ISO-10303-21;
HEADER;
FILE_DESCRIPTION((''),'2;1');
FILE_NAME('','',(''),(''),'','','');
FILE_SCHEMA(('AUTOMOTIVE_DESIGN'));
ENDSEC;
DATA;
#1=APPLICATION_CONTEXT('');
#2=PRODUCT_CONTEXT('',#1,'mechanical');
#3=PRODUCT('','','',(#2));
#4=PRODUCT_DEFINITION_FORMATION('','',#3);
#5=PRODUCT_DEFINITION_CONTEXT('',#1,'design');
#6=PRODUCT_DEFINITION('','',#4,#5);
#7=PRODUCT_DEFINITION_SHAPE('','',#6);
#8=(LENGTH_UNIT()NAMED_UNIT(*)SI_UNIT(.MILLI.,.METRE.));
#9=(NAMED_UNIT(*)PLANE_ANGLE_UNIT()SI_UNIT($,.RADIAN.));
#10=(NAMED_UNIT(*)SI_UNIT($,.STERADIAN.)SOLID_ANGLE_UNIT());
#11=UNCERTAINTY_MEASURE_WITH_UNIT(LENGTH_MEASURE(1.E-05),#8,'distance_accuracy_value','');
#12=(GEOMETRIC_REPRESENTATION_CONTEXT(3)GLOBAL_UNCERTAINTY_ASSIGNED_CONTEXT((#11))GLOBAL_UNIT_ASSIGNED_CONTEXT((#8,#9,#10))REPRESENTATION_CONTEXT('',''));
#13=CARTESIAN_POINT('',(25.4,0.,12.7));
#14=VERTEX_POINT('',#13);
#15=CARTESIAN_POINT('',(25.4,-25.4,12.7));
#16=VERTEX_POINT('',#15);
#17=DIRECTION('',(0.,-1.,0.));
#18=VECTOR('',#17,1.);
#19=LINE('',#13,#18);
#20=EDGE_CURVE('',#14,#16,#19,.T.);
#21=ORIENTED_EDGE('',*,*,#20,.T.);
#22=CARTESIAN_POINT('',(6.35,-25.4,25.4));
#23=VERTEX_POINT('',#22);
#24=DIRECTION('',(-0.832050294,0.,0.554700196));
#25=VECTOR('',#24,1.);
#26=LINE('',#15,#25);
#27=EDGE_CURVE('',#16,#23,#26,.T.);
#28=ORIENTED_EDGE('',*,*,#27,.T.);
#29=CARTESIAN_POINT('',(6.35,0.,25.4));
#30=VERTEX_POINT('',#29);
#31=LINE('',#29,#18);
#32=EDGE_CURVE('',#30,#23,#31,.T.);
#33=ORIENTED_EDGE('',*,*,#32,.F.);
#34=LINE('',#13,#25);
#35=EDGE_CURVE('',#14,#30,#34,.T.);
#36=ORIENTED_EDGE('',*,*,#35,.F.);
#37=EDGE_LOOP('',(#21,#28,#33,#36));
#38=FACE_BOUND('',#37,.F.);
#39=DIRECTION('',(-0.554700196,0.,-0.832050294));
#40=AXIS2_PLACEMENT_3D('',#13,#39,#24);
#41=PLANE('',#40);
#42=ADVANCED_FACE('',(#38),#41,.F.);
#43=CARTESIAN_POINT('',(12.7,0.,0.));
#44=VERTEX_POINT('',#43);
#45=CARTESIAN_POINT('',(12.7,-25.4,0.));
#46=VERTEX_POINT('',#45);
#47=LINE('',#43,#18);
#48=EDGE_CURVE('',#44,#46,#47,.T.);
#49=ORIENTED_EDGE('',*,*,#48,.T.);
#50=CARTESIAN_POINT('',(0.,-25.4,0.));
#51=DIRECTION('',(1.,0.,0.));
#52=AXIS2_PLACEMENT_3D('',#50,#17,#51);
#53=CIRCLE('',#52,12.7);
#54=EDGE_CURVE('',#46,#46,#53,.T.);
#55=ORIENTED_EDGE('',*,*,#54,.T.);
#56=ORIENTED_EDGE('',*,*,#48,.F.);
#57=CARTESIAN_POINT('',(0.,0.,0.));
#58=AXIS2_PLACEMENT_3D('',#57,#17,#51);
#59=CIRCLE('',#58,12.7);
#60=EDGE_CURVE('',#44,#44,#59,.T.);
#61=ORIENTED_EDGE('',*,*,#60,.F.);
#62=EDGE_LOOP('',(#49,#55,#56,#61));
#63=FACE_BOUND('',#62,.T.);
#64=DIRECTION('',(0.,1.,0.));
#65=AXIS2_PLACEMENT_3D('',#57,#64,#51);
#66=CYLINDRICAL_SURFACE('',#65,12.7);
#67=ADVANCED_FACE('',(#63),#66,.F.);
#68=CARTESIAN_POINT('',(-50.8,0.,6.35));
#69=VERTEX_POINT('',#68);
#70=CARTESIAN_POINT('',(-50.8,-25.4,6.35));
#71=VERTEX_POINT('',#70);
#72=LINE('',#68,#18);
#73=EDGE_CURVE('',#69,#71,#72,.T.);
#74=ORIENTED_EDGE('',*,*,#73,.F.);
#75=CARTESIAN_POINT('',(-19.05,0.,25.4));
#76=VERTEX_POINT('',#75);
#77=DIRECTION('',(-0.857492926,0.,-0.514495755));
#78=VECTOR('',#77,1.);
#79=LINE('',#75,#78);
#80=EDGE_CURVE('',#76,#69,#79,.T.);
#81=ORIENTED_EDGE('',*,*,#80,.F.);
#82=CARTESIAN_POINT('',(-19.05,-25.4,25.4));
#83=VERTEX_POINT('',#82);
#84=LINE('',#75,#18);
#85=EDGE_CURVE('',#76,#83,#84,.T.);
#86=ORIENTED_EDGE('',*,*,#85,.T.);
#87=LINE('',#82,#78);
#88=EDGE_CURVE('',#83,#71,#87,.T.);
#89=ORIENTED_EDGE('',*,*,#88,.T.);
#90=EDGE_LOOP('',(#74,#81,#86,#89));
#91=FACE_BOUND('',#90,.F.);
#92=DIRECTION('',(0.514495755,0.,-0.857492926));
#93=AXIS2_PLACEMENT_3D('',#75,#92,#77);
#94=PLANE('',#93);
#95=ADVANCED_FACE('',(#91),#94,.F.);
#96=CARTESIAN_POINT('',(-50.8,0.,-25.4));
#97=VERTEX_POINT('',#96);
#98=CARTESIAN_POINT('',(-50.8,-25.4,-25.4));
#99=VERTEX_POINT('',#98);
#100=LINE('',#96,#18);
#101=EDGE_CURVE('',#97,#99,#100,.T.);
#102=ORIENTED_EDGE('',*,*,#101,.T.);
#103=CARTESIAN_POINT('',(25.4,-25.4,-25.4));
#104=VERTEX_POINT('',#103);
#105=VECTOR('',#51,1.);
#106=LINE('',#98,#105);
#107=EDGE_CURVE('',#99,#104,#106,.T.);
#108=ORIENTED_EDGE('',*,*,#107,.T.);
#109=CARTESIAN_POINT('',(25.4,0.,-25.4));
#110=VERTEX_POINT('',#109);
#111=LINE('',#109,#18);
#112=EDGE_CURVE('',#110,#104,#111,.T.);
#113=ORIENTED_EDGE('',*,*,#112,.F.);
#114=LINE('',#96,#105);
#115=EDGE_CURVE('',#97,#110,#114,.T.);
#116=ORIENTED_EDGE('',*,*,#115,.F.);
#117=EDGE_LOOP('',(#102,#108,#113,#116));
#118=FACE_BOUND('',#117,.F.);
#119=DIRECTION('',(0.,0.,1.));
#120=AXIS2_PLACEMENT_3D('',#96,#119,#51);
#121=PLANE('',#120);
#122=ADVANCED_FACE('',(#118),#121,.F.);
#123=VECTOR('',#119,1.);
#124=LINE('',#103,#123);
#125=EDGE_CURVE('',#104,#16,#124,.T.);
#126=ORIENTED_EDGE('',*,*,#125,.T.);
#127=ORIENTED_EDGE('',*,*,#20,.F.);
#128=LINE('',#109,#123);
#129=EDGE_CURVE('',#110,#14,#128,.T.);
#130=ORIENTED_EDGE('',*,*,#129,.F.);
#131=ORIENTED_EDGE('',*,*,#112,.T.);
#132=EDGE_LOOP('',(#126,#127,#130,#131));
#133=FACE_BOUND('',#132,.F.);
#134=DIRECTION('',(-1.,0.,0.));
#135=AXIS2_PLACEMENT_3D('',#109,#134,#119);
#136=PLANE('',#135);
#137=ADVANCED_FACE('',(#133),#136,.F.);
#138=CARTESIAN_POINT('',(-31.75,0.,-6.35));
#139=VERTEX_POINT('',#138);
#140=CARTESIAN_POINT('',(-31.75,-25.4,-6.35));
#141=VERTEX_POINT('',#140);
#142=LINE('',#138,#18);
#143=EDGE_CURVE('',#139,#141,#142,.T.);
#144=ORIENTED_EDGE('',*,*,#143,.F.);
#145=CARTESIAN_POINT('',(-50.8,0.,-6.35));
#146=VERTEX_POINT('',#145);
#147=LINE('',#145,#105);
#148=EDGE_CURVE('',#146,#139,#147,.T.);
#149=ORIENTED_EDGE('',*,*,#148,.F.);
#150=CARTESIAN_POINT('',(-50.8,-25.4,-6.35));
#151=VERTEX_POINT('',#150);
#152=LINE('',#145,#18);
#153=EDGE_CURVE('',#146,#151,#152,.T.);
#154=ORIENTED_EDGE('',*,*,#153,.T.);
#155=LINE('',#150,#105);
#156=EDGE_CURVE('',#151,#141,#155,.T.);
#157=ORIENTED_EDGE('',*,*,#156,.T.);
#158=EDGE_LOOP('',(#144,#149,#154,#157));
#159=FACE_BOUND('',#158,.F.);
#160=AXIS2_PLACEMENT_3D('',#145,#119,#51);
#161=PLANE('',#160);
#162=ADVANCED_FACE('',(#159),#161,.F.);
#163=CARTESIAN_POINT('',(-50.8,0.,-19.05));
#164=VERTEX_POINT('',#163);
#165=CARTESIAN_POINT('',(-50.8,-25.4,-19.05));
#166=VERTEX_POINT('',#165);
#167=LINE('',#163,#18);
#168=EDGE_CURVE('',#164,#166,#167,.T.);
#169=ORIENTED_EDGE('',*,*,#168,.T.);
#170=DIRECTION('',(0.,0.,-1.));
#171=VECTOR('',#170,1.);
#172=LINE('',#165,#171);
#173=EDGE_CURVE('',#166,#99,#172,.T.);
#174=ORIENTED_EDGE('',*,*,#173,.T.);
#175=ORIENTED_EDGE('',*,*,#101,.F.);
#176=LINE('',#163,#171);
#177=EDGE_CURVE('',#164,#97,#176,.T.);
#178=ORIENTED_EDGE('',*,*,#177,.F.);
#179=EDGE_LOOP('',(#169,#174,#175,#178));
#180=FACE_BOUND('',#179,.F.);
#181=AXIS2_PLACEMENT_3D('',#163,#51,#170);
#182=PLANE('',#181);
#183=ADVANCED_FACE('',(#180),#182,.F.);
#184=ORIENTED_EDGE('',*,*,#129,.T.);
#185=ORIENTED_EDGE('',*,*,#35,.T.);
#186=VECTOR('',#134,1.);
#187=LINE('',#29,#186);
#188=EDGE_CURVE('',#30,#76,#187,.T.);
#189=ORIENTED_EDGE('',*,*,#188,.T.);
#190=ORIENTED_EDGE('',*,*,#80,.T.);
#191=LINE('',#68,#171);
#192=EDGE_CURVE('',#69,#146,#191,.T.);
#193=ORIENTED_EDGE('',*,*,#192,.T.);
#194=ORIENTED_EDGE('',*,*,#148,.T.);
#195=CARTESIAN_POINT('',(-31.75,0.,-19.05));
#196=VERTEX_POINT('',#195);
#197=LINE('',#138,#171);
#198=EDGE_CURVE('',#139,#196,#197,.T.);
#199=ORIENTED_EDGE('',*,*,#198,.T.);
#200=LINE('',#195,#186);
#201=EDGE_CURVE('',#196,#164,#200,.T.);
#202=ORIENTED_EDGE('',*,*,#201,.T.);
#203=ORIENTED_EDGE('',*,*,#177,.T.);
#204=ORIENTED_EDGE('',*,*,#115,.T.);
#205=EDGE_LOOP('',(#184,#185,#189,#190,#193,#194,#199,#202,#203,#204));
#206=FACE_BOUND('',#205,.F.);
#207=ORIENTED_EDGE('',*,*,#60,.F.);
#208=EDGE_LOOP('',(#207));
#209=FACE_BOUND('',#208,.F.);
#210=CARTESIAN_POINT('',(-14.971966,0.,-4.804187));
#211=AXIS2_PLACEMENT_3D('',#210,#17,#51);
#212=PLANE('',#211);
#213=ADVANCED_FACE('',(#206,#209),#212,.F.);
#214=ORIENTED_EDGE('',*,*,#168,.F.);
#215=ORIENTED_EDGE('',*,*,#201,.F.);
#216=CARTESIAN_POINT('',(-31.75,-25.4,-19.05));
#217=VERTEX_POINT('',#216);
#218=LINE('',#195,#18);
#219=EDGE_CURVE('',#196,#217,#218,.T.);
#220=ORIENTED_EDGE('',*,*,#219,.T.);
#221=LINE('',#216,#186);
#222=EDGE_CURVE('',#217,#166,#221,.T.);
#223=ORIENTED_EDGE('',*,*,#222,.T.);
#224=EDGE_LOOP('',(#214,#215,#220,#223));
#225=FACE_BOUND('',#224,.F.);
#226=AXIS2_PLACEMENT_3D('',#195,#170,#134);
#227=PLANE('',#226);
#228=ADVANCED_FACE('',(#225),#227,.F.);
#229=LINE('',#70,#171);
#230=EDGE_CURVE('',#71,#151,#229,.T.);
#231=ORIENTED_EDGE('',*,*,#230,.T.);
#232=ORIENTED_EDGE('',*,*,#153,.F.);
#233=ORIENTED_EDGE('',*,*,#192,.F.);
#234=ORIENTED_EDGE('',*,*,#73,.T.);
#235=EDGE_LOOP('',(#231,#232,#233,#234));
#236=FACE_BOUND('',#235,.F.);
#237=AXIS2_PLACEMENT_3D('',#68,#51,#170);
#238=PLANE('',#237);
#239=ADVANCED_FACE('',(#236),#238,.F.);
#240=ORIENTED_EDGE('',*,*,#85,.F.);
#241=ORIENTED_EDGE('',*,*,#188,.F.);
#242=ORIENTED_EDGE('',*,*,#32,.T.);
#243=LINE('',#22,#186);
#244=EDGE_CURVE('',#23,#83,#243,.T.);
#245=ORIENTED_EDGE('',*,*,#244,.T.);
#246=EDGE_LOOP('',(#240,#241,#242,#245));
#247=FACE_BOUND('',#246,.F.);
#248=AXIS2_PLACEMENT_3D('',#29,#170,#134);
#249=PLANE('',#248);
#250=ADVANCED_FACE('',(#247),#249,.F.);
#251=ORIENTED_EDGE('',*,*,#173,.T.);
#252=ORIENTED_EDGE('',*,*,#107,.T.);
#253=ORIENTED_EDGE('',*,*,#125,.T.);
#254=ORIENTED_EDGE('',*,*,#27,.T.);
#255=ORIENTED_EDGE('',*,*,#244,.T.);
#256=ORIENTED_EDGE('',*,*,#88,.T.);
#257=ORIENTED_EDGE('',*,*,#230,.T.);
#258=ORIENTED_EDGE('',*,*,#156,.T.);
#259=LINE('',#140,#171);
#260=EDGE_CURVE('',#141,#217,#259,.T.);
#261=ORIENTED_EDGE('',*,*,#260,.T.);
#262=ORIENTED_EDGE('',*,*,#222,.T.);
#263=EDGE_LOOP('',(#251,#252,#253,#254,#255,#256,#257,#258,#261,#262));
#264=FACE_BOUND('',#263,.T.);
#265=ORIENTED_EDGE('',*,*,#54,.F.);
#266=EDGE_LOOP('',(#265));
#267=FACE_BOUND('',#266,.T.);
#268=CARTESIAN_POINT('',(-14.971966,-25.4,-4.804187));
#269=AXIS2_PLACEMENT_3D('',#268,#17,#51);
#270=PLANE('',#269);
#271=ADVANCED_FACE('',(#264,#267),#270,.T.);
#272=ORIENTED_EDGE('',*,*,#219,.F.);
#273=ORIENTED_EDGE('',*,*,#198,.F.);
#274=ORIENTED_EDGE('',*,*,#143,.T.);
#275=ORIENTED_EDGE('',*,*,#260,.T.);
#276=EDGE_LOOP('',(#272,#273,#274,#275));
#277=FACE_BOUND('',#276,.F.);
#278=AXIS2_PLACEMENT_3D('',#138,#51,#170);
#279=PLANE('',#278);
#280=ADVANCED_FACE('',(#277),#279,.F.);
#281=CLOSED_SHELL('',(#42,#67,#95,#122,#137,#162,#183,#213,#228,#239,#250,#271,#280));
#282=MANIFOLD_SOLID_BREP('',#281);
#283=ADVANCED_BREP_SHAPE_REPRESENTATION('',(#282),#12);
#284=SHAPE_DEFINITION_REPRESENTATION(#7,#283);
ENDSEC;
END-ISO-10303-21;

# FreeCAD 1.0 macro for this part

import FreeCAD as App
import Part
import Sketcher

V = App.Vector
Q = App.Units.Quantity


def add_polygon(sketch, points):
    """Adds a closed chain of lines whose ends are joined by coincident constraints."""
    first, n = sketch.GeometryCount, len(points)
    for a, b in zip(points, points[1:] + points[:1]):
        sketch.addGeometry(Part.LineSegment(App.Vector(*a, 0), App.Vector(*b, 0)), False)
    for i in range(n):
        sketch.addConstraint(Sketcher.Constraint("Coincident", first + i, 2, first + (i + 1) % n, 1))

doc = App.newDocument("Part")
body = doc.addObject("PartDesign::Body", "Body")

sketch1 = doc.addObject("Sketcher::SketchObject", "Sketch")
body.addObject(sketch1)
sketch1.AttachmentSupport = (doc.XZ_Plane, [""])
sketch1.MapMode = "FlatFace"
add_polygon(sketch1, [(6.35, 25.4), (-19.05, 25.4), (-50.8, 6.35), (-50.8, -6.35), (-31.75, -6.35), (-31.75, -19.05), (-50.8, -19.05), (-50.8, -25.4), (25.4, -25.4), (25.4, 12.7)])
sketch1.addGeometry(Part.Circle(V(0, 0, 0), V(0, 0, 1), 12.7), False)
sketch1.addConstraint(Sketcher.Constraint("Horizontal", 0))
sketch1.addConstraint(Sketcher.Constraint("Vertical", 2))
sketch1.addConstraint(Sketcher.Constraint("Horizontal", 3))
sketch1.addConstraint(Sketcher.Constraint("Vertical", 4))
sketch1.addConstraint(Sketcher.Constraint("Horizontal", 5))
sketch1.addConstraint(Sketcher.Constraint("Vertical", 6))
sketch1.addConstraint(Sketcher.Constraint("Horizontal", 7))
sketch1.addConstraint(Sketcher.Constraint("Vertical", 8))
sketch1.addConstraint(Sketcher.Constraint("Coincident", 10, 3, -1, 1))
sketch1.addConstraint(Sketcher.Constraint("Vertical", 2, 2, 5, 2))
sketch1.addConstraint(Sketcher.Constraint("Equal", 2, 4))
sketch1.addConstraint(Sketcher.Constraint("Diameter", 10, Q("1 in")))
sketch1.addConstraint(Sketcher.Constraint("DistanceX", 0, 2, 0, 1, Q("1 in")))
sketch1.addConstraint(Sketcher.Constraint("DistanceX", 7, 1, 7, 2, Q("3 in")))
sketch1.addConstraint(Sketcher.Constraint("DistanceY", 2, 2, 2, 1, Q("0.5 in")))
sketch1.addConstraint(Sketcher.Constraint("DistanceY", 8, 1, 8, 2, Q("1.5 in")))
sketch1.addConstraint(Sketcher.Constraint("DistanceY", -1, 1, 0, 2, Q("1 in")))
sketch1.addConstraint(Sketcher.Constraint("DistanceX", 1, 2, -1, 1, Q("2 in")))
sketch1.addConstraint(Sketcher.Constraint("DistanceY", 6, 2, -1, 1, Q("1 in")))
sketch1.addConstraint(Sketcher.Constraint("DistanceX", 3, 1, 3, 2, Q("0.75 in")))
sketch1.addConstraint(Sketcher.Constraint("DistanceY", 6, 2, 6, 1, Q("0.25 in")))
sketch1.addConstraint(Sketcher.Constraint("DistanceX", 3, 2, 0, 2, Q("0.5 in")))
pad1 = doc.addObject("PartDesign::Pad", "Pad")
body.addObject(pad1)
pad1.Profile = sketch1
pad1.Length = Q("1 in")

doc.recompute()
